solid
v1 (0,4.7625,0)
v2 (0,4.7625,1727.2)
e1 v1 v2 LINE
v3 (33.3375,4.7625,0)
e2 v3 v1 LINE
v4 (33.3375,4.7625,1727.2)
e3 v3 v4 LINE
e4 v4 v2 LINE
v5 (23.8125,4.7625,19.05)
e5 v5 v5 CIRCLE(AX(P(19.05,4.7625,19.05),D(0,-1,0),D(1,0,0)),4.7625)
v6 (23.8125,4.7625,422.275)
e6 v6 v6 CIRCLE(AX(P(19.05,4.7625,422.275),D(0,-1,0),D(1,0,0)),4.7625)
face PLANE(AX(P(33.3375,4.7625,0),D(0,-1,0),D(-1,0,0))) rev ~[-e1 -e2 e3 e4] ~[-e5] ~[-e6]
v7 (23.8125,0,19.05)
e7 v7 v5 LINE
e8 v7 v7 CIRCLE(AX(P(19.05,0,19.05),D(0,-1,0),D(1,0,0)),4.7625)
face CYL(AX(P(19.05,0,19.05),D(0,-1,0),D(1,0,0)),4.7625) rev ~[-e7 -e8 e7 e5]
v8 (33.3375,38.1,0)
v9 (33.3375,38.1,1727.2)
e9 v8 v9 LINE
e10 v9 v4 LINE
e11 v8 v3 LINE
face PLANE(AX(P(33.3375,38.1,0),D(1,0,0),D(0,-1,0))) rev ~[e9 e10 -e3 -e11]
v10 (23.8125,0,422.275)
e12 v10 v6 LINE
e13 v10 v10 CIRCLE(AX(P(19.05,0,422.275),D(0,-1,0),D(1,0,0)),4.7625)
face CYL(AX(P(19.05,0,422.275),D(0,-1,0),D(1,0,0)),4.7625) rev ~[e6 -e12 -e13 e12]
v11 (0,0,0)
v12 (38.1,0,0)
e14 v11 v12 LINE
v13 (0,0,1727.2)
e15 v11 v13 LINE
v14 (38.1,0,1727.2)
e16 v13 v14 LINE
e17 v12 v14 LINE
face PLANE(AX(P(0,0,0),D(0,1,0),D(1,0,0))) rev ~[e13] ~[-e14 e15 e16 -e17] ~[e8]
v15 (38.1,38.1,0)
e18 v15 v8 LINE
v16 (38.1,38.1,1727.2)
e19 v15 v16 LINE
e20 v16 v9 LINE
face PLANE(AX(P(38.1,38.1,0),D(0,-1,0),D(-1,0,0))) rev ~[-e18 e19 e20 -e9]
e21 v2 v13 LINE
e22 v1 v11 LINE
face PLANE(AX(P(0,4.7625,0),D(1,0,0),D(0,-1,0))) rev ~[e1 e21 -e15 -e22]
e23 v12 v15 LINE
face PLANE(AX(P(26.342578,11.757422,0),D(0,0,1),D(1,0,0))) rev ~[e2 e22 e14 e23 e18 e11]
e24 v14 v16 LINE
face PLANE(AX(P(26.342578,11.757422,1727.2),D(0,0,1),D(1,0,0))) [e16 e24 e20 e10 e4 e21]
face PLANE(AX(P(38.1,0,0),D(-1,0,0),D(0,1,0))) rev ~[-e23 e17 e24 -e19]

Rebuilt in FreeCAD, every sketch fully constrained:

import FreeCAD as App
import Part
import Sketcher
from FreeCAD import Vector
Q = App.Units.Quantity


def add_polygon(sketch, points):
    """Adds a closed chain of lines whose ends are joined by coincident constraints."""
    first, n = sketch.GeometryCount, len(points)
    for a, b in zip(points, points[1:] + points[:1]):
        sketch.addGeometry(Part.LineSegment(App.Vector(*a, 0), App.Vector(*b, 0)), False)
    for i in range(n):
        sketch.addConstraint(Sketcher.Constraint("Coincident", first + i, 2, first + (i + 1) % n, 1))

doc = App.newDocument("Part")
params = doc.addObject("Spreadsheet::Sheet", "Params")
for row, (alias, value) in enumerate([
    ("sketch1_width", "1.5 in"),
    ("sketch1_width2", "0.1875 in"),
    ("pad1_length", "68 in"),
    ("sketch2_diameter", "0.375 in"),
    ("sketch3_diameter", "0.375 in"),
], start=1):
    params.set(f"A{row}", alias)
    params.set(f"B{row}", "=" + value)
    params.setAlias(f"B{row}", alias)

body = doc.addObject("PartDesign::Body", "Body")

sketch1 = body.newObject("Sketcher::SketchObject", "Sketch")
sketch1.AttachmentSupport = (doc.getObject("XY_Plane"), [""])
sketch1.MapMode = "FlatFace"
add_polygon(sketch1, [(0, 4.8), (0, 0), (38.1, 0), (38.1, 38.1), (33.3, 38.1), (33.3, 4.8)])
sketch1.addConstraint([
    Sketcher.Constraint("Vertical", 0),
    Sketcher.Constraint("Horizontal", 1),
    Sketcher.Constraint("Vertical", 2),
    Sketcher.Constraint("Horizontal", 3),
    Sketcher.Constraint("Vertical", 4),
    Sketcher.Constraint("Horizontal", 5),
    Sketcher.Constraint("Coincident", 0, 2, -1, 1),
    Sketcher.Constraint("Equal", 3, 0),
    Sketcher.Constraint("Equal", 1, 2),
    Sketcher.Constraint("DistanceX", 1, 1, 1, 2, Q("1.5 in")),
    Sketcher.Constraint("DistanceX", 3, 2, 3, 1, Q("0.1875 in")),
])
sketch1.setExpression("Constraints[15]", "Params.sketch1_width")
sketch1.setExpression("Constraints[16]", "Params.sketch1_width2")
pad1 = body.newObject("PartDesign::Pad", "Pad")
pad1.Profile = sketch1
pad1.setExpression("Length", "Params.pad1_length")

sketch2 = body.newObject("Sketcher::SketchObject", "Sketch001")
sketch2.AttachmentSupport = (doc.getObject("XZ_Plane"), [""])
sketch2.MapMode = "FlatFace"
sketch2.addGeometry(Part.Circle(Vector(19.1, 19.1, 0), Vector(0, 0, 1), 4.8), False)
sketch2.addConstraint([
    Sketcher.Constraint("Diameter", 0, Q("0.375 in")),
    Sketcher.Constraint("DistanceX", -1, 1, 0, 3, Q("0.75 in")),
    Sketcher.Constraint("DistanceY", -1, 1, 0, 3, Q("0.75 in")),
])
sketch2.setExpression("Constraints[0]", "Params.sketch2_diameter")
pocket1 = body.newObject("PartDesign::Pocket", "Pocket")
pocket1.Profile = sketch2
pocket1.Type = "ThroughAll"

sketch3 = body.newObject("Sketcher::SketchObject", "Sketch002")
sketch3.AttachmentSupport = (doc.getObject("XZ_Plane"), [""])
sketch3.MapMode = "FlatFace"
sketch3.addGeometry(Part.Circle(Vector(19.1, 422.3, 0), Vector(0, 0, 1), 4.8), False)
sketch3.addConstraint([
    Sketcher.Constraint("Diameter", 0, Q("0.375 in")),
    Sketcher.Constraint("DistanceX", -1, 1, 0, 3, Q("0.75 in")),
    Sketcher.Constraint("DistanceY", -1, 1, 0, 3, Q("16.625 in")),
])
sketch3.setExpression("Constraints[0]", "Params.sketch3_diameter")
pocket2 = body.newObject("PartDesign::Pocket", "Pocket001")
pocket2.Profile = sketch3
pocket2.Type = "ThroughAll"

doc.recompute()
